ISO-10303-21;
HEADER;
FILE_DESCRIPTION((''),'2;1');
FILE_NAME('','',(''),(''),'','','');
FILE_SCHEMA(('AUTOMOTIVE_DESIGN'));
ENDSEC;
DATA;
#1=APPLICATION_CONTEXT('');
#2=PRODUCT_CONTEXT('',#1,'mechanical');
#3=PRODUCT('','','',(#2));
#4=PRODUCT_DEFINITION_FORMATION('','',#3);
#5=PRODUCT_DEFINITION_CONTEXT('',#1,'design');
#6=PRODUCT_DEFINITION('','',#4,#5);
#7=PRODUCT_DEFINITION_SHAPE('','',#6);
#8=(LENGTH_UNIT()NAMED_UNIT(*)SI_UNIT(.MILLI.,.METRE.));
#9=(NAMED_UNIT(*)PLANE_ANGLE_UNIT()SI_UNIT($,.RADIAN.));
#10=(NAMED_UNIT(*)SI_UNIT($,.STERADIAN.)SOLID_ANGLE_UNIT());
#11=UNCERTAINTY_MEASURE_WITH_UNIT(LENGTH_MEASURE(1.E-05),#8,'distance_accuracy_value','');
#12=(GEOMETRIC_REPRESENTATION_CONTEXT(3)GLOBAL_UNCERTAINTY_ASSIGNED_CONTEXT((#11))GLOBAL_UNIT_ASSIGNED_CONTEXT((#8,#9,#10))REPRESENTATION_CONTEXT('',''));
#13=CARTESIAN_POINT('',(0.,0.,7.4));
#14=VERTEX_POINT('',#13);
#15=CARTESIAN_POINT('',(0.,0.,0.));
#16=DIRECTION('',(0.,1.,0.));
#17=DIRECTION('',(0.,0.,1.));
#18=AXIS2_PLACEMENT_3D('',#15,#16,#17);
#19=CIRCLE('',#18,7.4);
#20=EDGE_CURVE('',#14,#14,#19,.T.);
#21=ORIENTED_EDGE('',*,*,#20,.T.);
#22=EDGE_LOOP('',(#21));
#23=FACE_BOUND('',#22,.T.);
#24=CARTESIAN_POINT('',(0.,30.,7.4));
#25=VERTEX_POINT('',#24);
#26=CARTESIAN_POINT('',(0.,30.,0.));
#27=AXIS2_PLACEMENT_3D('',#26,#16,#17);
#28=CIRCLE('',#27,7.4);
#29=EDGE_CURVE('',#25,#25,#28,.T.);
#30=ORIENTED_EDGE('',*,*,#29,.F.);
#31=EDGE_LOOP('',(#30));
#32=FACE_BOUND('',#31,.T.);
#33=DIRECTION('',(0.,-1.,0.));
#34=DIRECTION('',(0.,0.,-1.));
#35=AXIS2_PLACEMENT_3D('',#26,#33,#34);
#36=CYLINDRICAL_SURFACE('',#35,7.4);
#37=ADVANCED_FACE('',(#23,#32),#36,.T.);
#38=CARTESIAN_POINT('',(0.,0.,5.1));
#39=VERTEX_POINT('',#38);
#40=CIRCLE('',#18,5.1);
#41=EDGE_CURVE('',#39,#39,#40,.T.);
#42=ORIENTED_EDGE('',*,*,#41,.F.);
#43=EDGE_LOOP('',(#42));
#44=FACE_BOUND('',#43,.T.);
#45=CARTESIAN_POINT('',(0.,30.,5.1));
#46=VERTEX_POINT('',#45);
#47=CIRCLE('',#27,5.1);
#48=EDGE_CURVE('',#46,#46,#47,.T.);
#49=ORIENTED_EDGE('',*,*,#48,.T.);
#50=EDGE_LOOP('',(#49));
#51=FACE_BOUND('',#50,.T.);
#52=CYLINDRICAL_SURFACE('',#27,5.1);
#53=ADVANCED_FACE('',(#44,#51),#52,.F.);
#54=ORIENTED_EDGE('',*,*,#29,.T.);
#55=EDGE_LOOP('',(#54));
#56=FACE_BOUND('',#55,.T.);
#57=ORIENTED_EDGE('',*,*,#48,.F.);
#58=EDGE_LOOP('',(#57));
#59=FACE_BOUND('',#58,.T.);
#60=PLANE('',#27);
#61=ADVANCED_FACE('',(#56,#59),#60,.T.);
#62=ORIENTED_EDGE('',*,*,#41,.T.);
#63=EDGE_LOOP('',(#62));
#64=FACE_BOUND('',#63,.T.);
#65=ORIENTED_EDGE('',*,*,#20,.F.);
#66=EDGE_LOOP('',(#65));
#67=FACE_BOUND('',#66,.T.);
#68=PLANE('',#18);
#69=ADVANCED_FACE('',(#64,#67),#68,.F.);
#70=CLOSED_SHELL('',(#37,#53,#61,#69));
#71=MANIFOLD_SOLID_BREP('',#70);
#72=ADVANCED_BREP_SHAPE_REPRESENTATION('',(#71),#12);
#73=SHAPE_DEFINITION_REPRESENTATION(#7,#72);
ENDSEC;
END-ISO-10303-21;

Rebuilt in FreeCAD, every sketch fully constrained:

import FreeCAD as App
import Part
import Sketcher
Q = App.Units.Quantity

doc = App.newDocument("Part")
body = doc.addObject("PartDesign::Body", "Body")

sketch1 = body.newObject("Sketcher::SketchObject", "Sketch")
sketch1.AttachmentSupport = (doc.getObject("XZ_Plane"), [""])
sketch1.MapMode = "FlatFace"
sketch1.addGeometry(Part.Circle(App.Vector(0, 0, 0), App.Vector(0, 0, 1), 7), False)
sketch1.addConstraint([
    Sketcher.Constraint("Coincident", 0, 3, -1, 1),
    Sketcher.Constraint("Diameter", 0, Q("14.8 mm")),
])
pad1 = body.newObject("PartDesign::Pad", "Pad")
pad1.Profile = sketch1
pad1.Length = 30
pad1.Reversed = True

sketch2 = body.newObject("Sketcher::SketchObject", "Sketch001")
sketch2.AttachmentSupport = (doc.getObject("XZ_Plane"), [""])
sketch2.MapMode = "FlatFace"
sketch2.AttachmentOffset = App.Placement(App.Vector(0, 0, -30), App.Rotation())
sketch2.addGeometry(Part.Circle(App.Vector(0, 0, 0), App.Vector(0, 0, 1), 5), False)
sketch2.addConstraint([
    Sketcher.Constraint("Coincident", 0, 3, -1, 1),
    Sketcher.Constraint("Diameter", 0, Q("10.2 mm")),
])
doc.recompute()
hole = body.newObject("PartDesign::Hole", "Hole")
hole.Profile = sketch2
hole.ThreadType = "None"
hole.Diameter = 10.2
hole.DepthType = "ThroughAll"
hole.Reversed = True

doc.recompute()
